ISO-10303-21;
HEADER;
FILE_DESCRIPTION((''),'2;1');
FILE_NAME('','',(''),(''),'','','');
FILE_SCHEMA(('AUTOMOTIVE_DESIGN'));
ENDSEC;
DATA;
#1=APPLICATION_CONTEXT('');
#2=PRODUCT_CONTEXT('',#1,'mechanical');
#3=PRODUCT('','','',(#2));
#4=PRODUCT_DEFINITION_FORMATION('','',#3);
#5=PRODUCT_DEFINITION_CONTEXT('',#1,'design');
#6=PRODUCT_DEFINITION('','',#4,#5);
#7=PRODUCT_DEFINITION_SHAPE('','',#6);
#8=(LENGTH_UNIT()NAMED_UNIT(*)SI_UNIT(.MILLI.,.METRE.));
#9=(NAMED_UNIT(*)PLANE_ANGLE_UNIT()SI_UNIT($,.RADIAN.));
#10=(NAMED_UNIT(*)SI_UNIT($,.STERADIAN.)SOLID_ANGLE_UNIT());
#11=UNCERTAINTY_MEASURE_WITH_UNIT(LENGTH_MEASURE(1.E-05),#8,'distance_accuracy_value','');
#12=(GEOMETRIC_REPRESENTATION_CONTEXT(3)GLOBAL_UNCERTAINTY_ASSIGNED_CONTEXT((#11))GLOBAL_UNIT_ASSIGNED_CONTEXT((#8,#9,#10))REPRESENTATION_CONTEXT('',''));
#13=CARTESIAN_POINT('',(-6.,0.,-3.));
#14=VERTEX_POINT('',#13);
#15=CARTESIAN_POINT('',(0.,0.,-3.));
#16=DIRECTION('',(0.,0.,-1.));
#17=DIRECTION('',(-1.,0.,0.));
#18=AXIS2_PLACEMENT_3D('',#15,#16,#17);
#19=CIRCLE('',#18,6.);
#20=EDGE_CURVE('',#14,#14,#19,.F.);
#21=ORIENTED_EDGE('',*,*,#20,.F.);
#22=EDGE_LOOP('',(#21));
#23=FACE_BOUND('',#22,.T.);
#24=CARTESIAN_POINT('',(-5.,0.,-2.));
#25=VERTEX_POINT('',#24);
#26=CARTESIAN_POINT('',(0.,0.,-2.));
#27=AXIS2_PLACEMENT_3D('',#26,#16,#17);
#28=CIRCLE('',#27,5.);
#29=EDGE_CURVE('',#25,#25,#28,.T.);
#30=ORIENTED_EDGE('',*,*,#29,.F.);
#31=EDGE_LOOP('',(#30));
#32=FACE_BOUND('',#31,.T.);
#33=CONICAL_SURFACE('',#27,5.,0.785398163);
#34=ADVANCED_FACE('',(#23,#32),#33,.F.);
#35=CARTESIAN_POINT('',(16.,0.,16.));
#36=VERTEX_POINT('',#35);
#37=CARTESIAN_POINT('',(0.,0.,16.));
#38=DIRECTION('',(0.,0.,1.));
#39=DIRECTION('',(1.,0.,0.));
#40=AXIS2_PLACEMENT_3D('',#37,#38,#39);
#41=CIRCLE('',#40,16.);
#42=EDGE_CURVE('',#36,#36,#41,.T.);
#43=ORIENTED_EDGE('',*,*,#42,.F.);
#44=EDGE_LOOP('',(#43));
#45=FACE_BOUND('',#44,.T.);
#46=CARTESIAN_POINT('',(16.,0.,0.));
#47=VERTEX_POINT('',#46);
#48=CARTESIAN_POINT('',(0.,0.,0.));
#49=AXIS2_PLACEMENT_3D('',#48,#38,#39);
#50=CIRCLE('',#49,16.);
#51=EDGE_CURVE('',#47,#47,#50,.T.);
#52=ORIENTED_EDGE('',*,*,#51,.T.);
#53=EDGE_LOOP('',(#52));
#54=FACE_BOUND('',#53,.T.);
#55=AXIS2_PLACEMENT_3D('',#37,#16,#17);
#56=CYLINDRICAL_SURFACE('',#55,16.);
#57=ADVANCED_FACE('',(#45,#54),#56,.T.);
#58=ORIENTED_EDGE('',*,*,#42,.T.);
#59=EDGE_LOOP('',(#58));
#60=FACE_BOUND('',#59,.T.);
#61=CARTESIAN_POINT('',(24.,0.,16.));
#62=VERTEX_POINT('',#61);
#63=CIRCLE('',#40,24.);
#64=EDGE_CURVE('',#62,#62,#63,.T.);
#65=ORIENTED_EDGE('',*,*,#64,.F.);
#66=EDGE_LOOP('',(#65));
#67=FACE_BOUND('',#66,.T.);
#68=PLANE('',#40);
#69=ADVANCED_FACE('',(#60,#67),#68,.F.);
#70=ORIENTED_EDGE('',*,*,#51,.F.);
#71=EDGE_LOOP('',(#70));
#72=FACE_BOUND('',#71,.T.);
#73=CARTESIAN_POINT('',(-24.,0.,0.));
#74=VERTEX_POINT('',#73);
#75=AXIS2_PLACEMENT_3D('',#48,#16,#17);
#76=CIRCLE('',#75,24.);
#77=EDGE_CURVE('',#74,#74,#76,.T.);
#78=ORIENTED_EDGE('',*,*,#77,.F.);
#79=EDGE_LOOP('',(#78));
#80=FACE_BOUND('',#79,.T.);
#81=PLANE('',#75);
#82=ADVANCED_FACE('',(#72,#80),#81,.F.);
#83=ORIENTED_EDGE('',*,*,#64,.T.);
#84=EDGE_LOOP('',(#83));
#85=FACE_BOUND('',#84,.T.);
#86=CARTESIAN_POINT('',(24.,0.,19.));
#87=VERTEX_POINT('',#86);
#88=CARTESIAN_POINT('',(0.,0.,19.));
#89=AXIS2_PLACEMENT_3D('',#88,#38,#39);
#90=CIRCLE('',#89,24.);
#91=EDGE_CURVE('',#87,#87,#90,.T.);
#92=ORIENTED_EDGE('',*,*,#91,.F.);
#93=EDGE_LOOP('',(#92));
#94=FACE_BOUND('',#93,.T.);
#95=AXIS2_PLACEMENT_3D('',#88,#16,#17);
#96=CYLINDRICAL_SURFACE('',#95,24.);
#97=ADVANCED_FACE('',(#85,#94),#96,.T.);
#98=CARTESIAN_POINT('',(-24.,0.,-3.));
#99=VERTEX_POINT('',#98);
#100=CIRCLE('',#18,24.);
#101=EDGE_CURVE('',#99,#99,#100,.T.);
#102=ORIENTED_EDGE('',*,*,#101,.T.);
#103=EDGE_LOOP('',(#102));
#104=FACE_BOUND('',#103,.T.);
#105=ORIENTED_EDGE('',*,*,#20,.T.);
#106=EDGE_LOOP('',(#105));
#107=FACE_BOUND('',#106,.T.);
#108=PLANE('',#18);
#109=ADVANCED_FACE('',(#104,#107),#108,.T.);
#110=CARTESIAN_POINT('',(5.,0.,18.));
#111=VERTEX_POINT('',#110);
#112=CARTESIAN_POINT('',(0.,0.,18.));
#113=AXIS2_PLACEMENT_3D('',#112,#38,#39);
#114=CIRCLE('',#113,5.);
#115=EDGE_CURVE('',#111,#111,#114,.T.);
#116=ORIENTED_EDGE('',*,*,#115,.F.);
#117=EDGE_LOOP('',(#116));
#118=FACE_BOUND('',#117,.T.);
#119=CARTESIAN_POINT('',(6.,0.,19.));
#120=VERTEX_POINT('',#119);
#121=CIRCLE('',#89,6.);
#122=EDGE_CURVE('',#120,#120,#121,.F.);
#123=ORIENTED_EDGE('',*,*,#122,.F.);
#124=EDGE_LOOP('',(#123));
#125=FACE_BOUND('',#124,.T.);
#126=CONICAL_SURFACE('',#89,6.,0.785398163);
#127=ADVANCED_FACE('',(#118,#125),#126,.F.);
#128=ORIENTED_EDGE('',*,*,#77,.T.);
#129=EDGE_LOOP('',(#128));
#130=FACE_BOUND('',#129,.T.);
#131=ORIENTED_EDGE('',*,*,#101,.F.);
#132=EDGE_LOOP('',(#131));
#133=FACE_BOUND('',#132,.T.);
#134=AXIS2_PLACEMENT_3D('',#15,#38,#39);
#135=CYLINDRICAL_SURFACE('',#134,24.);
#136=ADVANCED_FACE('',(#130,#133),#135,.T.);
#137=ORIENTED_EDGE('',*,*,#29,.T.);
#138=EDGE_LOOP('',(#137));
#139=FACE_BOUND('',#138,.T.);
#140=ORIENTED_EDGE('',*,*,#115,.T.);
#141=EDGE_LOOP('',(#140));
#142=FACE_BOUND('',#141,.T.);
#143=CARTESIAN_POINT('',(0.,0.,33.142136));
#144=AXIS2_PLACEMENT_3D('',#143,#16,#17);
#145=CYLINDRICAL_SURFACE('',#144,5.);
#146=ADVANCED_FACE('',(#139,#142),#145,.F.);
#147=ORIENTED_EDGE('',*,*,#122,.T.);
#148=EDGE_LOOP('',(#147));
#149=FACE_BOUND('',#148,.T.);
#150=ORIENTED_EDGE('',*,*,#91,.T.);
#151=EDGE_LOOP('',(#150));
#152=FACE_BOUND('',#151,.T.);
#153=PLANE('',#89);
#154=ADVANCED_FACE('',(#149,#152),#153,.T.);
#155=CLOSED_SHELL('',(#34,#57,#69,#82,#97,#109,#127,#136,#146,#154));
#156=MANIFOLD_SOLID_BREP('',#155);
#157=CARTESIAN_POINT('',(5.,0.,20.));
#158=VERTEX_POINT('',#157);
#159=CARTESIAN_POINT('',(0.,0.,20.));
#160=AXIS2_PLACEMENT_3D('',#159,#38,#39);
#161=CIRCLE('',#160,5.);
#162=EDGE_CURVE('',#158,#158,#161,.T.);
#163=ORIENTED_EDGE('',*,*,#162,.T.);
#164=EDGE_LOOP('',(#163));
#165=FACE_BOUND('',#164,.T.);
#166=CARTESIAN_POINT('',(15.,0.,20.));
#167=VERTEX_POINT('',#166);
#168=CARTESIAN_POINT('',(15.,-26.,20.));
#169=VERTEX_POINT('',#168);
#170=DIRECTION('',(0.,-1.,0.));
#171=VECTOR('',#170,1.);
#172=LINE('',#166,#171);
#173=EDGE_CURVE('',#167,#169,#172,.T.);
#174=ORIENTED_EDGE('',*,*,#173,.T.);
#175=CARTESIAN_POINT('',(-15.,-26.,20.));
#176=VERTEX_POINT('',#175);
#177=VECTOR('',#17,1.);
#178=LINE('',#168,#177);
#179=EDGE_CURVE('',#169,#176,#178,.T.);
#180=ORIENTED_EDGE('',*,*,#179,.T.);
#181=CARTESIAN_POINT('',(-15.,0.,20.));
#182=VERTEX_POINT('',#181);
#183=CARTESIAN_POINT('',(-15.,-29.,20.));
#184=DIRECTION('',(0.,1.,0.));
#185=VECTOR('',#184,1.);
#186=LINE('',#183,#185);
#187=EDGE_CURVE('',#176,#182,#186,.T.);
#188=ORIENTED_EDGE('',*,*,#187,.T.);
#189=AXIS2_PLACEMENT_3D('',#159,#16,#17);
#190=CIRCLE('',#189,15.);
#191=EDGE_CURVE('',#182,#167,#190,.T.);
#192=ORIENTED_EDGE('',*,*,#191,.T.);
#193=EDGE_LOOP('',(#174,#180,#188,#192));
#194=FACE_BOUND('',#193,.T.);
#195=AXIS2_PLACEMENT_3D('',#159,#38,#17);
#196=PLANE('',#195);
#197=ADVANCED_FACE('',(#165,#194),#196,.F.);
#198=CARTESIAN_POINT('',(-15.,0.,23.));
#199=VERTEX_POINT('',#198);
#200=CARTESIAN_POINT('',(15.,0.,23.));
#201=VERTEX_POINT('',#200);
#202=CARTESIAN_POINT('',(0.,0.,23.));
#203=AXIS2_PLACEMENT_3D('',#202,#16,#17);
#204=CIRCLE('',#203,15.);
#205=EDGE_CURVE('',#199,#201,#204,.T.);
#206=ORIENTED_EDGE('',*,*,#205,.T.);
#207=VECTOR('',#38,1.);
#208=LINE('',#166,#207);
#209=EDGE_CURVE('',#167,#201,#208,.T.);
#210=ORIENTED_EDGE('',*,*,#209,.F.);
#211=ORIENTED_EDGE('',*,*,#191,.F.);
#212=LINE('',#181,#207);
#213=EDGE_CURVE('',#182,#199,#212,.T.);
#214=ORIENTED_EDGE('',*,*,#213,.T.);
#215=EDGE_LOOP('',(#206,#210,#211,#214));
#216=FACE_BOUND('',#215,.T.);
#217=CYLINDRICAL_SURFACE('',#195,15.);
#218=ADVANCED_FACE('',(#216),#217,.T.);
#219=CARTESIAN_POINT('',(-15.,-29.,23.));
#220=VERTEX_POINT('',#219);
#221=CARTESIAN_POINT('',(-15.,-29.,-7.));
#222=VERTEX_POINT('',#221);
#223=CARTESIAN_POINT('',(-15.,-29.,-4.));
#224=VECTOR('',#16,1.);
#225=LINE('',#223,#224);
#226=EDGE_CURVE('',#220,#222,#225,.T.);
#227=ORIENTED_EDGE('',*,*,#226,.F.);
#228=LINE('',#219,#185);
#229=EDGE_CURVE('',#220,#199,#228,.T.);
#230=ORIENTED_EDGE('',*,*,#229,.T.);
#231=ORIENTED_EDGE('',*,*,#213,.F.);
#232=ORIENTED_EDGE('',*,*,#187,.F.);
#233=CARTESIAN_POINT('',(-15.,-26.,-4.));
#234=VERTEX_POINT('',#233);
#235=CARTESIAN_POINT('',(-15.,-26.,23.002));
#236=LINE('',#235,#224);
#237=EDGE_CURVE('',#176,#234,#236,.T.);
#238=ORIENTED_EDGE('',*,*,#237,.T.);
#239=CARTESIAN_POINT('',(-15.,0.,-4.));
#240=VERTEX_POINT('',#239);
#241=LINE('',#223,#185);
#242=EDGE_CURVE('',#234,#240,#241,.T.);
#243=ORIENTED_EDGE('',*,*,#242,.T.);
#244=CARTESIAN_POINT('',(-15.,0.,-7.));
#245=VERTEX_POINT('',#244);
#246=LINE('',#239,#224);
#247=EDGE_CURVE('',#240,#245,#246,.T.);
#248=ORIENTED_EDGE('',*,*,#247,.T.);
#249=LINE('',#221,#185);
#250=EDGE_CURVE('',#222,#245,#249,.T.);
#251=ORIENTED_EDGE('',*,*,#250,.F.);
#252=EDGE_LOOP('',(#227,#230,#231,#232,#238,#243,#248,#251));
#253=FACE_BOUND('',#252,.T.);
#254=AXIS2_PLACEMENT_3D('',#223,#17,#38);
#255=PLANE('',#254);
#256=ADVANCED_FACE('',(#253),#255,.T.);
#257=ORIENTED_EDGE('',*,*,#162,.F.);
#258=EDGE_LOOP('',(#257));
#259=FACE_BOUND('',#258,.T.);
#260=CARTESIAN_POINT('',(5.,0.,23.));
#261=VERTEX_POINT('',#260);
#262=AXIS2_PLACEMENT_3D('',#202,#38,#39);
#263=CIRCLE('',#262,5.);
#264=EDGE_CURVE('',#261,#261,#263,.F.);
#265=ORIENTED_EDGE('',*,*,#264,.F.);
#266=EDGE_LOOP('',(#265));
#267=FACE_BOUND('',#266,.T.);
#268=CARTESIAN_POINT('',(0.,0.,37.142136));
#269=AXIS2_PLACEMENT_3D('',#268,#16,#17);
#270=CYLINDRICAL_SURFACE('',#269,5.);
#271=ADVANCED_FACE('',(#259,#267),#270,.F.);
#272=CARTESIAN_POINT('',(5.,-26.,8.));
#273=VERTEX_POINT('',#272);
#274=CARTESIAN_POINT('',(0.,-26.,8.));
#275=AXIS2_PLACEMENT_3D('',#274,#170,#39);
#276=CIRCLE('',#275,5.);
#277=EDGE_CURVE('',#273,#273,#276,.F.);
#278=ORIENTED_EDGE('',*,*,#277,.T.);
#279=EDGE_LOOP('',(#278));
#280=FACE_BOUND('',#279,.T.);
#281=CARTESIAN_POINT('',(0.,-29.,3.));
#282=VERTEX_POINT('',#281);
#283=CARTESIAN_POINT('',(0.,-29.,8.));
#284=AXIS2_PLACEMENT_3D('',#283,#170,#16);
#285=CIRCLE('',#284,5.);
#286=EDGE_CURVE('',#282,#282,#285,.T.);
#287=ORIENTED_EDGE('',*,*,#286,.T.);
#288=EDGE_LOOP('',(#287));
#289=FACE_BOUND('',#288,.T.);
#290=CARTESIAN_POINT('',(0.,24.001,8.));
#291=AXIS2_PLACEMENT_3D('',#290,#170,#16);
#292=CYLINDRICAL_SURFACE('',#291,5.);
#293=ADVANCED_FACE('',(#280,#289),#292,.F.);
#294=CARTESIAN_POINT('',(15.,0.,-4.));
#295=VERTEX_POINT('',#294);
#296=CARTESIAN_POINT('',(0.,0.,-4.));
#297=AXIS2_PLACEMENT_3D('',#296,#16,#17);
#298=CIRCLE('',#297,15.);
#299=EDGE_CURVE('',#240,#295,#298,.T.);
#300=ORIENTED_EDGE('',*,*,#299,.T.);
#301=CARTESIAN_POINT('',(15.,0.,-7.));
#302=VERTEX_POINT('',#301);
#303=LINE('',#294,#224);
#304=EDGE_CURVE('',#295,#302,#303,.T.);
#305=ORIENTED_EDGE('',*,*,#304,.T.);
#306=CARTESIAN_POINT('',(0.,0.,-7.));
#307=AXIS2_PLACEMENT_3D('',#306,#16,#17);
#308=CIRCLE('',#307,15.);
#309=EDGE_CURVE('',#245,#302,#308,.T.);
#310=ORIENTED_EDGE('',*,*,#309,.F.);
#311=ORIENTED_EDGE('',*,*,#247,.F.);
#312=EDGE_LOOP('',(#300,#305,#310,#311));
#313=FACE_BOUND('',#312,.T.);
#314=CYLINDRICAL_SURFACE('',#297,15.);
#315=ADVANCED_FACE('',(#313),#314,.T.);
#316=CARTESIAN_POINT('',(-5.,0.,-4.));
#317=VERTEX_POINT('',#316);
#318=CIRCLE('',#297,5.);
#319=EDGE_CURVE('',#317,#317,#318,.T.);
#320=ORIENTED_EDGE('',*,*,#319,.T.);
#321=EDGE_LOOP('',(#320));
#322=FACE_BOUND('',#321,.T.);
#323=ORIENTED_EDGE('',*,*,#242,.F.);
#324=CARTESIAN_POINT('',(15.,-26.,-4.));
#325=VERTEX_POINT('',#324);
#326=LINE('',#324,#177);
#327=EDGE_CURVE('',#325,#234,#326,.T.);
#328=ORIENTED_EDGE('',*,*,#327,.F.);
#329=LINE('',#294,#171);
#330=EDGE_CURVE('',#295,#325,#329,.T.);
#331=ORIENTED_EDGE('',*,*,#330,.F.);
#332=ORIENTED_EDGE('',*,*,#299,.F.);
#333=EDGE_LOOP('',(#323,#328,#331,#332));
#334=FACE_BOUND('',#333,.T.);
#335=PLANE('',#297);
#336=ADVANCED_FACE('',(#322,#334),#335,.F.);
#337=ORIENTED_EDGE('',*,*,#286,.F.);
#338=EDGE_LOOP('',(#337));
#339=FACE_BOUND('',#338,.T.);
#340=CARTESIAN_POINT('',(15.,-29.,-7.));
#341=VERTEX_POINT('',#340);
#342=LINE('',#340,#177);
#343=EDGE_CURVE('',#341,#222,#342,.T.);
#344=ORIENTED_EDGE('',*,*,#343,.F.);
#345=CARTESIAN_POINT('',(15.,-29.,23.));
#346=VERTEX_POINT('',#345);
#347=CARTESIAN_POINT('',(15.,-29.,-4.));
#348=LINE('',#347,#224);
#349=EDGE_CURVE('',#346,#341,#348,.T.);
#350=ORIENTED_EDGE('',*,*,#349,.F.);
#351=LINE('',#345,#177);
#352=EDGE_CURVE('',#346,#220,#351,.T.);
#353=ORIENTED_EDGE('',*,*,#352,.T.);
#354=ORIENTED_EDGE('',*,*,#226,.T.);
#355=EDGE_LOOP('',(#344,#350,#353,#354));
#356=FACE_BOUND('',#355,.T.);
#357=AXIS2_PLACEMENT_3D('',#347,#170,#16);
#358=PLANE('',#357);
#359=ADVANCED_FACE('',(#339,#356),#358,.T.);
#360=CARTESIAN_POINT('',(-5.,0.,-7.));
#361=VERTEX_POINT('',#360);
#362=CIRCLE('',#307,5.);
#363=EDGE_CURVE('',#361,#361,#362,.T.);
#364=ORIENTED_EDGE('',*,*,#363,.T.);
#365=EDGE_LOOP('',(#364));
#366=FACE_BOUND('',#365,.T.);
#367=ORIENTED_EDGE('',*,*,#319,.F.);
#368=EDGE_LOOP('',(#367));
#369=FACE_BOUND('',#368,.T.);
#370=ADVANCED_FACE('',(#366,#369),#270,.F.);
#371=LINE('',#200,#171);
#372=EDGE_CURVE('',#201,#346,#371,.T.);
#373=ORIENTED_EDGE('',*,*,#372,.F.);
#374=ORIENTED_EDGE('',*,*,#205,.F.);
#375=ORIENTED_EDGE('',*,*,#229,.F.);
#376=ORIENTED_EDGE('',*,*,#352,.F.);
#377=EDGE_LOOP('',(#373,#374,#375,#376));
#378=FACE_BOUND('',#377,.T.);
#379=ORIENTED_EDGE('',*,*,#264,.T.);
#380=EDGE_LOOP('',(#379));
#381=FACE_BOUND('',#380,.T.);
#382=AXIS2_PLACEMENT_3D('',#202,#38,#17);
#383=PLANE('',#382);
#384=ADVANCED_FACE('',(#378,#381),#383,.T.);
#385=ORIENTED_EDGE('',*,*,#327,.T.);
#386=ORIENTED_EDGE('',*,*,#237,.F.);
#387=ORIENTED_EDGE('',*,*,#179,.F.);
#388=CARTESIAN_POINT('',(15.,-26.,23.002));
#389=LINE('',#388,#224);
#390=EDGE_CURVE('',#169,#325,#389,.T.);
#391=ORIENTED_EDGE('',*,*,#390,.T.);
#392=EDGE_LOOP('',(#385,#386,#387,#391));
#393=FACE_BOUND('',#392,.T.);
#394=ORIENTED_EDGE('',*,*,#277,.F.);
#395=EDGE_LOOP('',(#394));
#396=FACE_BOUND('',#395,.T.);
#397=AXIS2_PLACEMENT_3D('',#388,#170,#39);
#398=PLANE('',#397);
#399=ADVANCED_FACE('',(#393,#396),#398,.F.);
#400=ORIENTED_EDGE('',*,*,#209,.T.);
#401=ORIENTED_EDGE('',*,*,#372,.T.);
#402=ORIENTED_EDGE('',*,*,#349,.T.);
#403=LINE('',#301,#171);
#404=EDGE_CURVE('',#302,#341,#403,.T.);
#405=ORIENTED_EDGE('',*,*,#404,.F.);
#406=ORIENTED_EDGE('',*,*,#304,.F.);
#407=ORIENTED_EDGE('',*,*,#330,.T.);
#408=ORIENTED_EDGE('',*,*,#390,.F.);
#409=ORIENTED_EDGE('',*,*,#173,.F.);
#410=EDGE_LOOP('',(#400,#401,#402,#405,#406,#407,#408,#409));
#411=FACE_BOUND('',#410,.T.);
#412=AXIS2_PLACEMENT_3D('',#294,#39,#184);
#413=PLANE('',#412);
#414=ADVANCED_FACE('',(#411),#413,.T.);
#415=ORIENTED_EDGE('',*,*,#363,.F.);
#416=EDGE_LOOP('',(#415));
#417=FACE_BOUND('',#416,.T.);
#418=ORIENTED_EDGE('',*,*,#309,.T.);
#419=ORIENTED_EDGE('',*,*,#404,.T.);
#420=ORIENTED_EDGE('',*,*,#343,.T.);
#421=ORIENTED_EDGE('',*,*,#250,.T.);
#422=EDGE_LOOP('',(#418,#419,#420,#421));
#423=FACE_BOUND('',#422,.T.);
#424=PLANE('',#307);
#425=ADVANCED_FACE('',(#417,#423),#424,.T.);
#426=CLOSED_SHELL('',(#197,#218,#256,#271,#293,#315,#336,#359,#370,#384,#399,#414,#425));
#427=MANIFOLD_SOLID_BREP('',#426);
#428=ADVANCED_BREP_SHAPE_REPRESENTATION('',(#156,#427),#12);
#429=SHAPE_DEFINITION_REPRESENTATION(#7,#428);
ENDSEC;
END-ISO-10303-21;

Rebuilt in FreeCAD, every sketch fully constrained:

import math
import FreeCAD as App
import Part
import Sketcher
from FreeCAD import Vector
Q = App.Units.Quantity


def edges_at(feature, points):
    """Names of the edges that pass closest to the given points."""
    edges = feature.Shape.Edges
    near = lambda p: min(range(len(edges)), key=lambda i: edges[i].distToShape(Part.Vertex(*p))[0])
    return sorted({f"Edge{near(p) + 1}" for p in points})

doc = App.newDocument("Part")
body = doc.addObject("PartDesign::Body", "Body")

# Sketch on XY plane
sketch1 = doc.addObject("Sketcher::SketchObject", "Sketch")
body.addObject(sketch1)
sketch1.AttachmentSupport = (doc.XY_Plane, [""])
sketch1.MapMode = "FlatFace"
sketch1.addGeometry(Part.Circle(Vector(0, 0, 0), Vector(0, 0, 1), 16), False)
sketch1.addConstraint([
    Sketcher.Constraint("Coincident", 0, 3, -1, 1),
    Sketcher.Constraint("Diameter", 0, Q("32 mm")),
])
pad1 = doc.addObject("PartDesign::Pad", "Pad")
body.addObject(pad1)
pad1.Profile = sketch1
pad1.Length = 16

# Sketch on XY plane
sketch2 = doc.addObject("Sketcher::SketchObject", "Sketch001")
body.addObject(sketch2)
sketch2.AttachmentSupport = (doc.XY_Plane, [""])
sketch2.MapMode = "FlatFace"
sketch2.addGeometry(Part.Circle(Vector(0, 0, 0), Vector(0, 0, 1), 24), False)
sketch2.addConstraint([
    Sketcher.Constraint("Coincident", 0, 3, -1, 1),
    Sketcher.Constraint("Diameter", 0, Q("48 mm")),
])
pad2 = doc.addObject("PartDesign::Pad", "Pad001")
body.addObject(pad2)
pad2.Profile = sketch2
pad2.Length = 3
pad2.Reversed = True

# Sketch on XY plane
sketch3 = doc.addObject("Sketcher::SketchObject", "Sketch002")
body.addObject(sketch3)
sketch3.AttachmentSupport = (doc.XY_Plane, [""])
sketch3.MapMode = "FlatFace"
sketch3.AttachmentOffset = App.Placement(Vector(0, 0, 19), App.Rotation())
sketch3.addGeometry(Part.Circle(Vector(0, 0, 0), Vector(0, 0, 1), 24), False)
sketch3.addConstraint([
    Sketcher.Constraint("Coincident", 0, 3, -1, 1),
    Sketcher.Constraint("Diameter", 0, Q("48 mm")),
])
pad3 = doc.addObject("PartDesign::Pad", "Pad002")
body.addObject(pad3)
pad3.Profile = sketch3
pad3.Length = 3
pad3.Reversed = True

# Sketch on XY plane
sketch4 = doc.addObject("Sketcher::SketchObject", "Sketch003")
body.addObject(sketch4)
sketch4.AttachmentSupport = (doc.XY_Plane, [""])
sketch4.MapMode = "FlatFace"
sketch4.AttachmentOffset = App.Placement(Vector(0, 0, -3), App.Rotation())
sketch4.addGeometry(Part.Circle(Vector(0, 0, 0), Vector(0, 0, 1), 5), False)
sketch4.addConstraint([
    Sketcher.Constraint("Coincident", 0, 3, -1, 1),
    Sketcher.Constraint("Diameter", 0, Q("10 mm")),
])
pocket1 = doc.addObject("PartDesign::Pocket", "Pocket")
body.addObject(pocket1)
pocket1.Profile = sketch4
pocket1.Length = 22
pocket1.Reversed = True
doc.recompute()

chamfer = doc.addObject("PartDesign::Chamfer", "Chamfer")
body.addObject(chamfer)
chamfer.Base = (pocket1, edges_at(pocket1, [(5, 0, -3), (5, 0, 19)]))
chamfer.Size = 1
body2 = doc.addObject("PartDesign::Body", "Body001")

# Sketch on XY plane
sketch5 = doc.addObject("Sketcher::SketchObject", "Sketch004")
body2.addObject(sketch5)
sketch5.AttachmentSupport = (doc.getObject("XY_Plane001"), [""])
sketch5.MapMode = "FlatFace"
sketch5.AttachmentOffset = App.Placement(Vector(0, 0, -7), App.Rotation())
sketch5.addGeometry([
    Part.LineSegment(Vector(15, 0, 0), Vector(15, -29, 0)),
    Part.LineSegment(Vector(15, -29, 0), Vector(-15, -29, 0)),
    Part.LineSegment(Vector(-15, -29, 0), Vector(-15, 0, 0)),
    Part.ArcOfCircle(Part.Circle(Vector(0, 0, 0), Vector(0, 0, 1), 15), math.radians(0), math.radians(180)),
], False)
sketch5.addConstraint([
    Sketcher.Constraint("Coincident", 0, 2, 1, 1),
    Sketcher.Constraint("Coincident", 1, 2, 2, 1),
    Sketcher.Constraint("Tangent", 2, 2, 3, 2),
    Sketcher.Constraint("Tangent", 3, 1, 0, 1),
    Sketcher.Constraint("Vertical", 0),
    Sketcher.Constraint("Horizontal", 1),
    Sketcher.Constraint("Vertical", 2),
    Sketcher.Constraint("Coincident", 3, 3, -1, 1),
    Sketcher.Constraint("Radius", 3, Q("15 mm")),
    Sketcher.Constraint("DistanceY", 0, 2, 0, 1, Q("29 mm")),
])
pad4 = doc.addObject("PartDesign::Pad", "Pad003")
body2.addObject(pad4)
pad4.Profile = sketch5
pad4.Length = 3
body3 = doc.addObject("PartDesign::Body", "Body002")
body3.AllowCompound = True
doc.recompute()

mirroring = doc.addObject("Part::Mirroring", "Mirroring")
mirroring.Source = body2
mirroring.Base = Vector(0, 0, 8)
mirroring.Normal = Vector(0, 0, 1)
body3.BaseFeature = mirroring
doc.recompute()

boolean = doc.addObject("PartDesign::Boolean", "Boolean")
body3.addObject(boolean)
boolean.Type = "Fuse"
boolean.addObjects([body2])

# Sketch on XY plane
sketch6 = doc.addObject("Sketcher::SketchObject", "Sketch005")
body3.addObject(sketch6)
sketch6.AttachmentSupport = (doc.getObject("XY_Plane002"), [""])
sketch6.MapMode = "FlatFace"
sketch6.AttachmentOffset = App.Placement(Vector(0, 0, -4), App.Rotation())
sketch6.addGeometry([
    Part.LineSegment(Vector(-15, -26, 0), Vector(-15, -29, 0)),
    Part.LineSegment(Vector(-15, -29, 0), Vector(15, -29, 0)),
    Part.LineSegment(Vector(15, -29, 0), Vector(15, -26, 0)),
    Part.LineSegment(Vector(15, -26, 0), Vector(-15, -26, 0)),
], False)
sketch6.addConstraint([
    Sketcher.Constraint("Coincident", 0, 2, 1, 1),
    Sketcher.Constraint("Coincident", 1, 2, 2, 1),
    Sketcher.Constraint("Coincident", 2, 2, 3, 1),
    Sketcher.Constraint("Coincident", 3, 2, 0, 1),
    Sketcher.Constraint("Vertical", 0),
    Sketcher.Constraint("Horizontal", 1),
    Sketcher.Constraint("Vertical", 2),
    Sketcher.Constraint("Horizontal", 3),
    Sketcher.Constraint("DistanceX", 1, 1, 1, 2, Q("30 mm")),
    Sketcher.Constraint("DistanceY", 0, 2, 0, 1, Q("3 mm")),
    Sketcher.Constraint("DistanceX", 0, 2, -1, 1, Q("15 mm")),
    Sketcher.Constraint("DistanceY", 0, 2, -1, 1, Q("29 mm")),
])
pad5 = doc.addObject("PartDesign::Pad", "Pad004")
body3.addObject(pad5)
pad5.Profile = sketch6
pad5.Type = "UpToFirst"

# Sketch on XY plane
sketch7 = doc.addObject("Sketcher::SketchObject", "Sketch006")
body3.addObject(sketch7)
sketch7.AttachmentSupport = (doc.getObject("XY_Plane002"), [""])
sketch7.MapMode = "FlatFace"
sketch7.AttachmentOffset = App.Placement(Vector(0, 0, -7), App.Rotation())
sketch7.addGeometry(Part.Circle(Vector(0, 0, 0), Vector(0, 0, 1), 5), False)
sketch7.addConstraint([
    Sketcher.Constraint("Coincident", 0, 3, -1, 1),
    Sketcher.Constraint("Diameter", 0, Q("10 mm")),
])
pocket2 = doc.addObject("PartDesign::Pocket", "Pocket001")
body3.addObject(pocket2)
pocket2.Profile = sketch7
pocket2.Length = 30
pocket2.Reversed = True

# Sketch on XZ plane
sketch8 = doc.addObject("Sketcher::SketchObject", "Sketch007")
body3.addObject(sketch8)
sketch8.AttachmentSupport = (doc.getObject("XZ_Plane002"), [""])
sketch8.MapMode = "FlatFace"
sketch8.AttachmentOffset = App.Placement(Vector(0, 0, 29), App.Rotation())
sketch8.addGeometry(Part.Circle(Vector(0, 8, 0), Vector(0, 0, 1), 5), False)
sketch8.addConstraint([
    Sketcher.Constraint("PointOnObject", 0, 3, -2),
    Sketcher.Constraint("Diameter", 0, Q("10 mm")),
    Sketcher.Constraint("DistanceY", -1, 1, 0, 3, Q("8 mm")),
])
pocket3 = doc.addObject("PartDesign::Pocket", "Pocket002")
body3.addObject(pocket3)
pocket3.Profile = sketch8
pocket3.Length = 3
mirroring.Visibility = False

doc.recompute()
